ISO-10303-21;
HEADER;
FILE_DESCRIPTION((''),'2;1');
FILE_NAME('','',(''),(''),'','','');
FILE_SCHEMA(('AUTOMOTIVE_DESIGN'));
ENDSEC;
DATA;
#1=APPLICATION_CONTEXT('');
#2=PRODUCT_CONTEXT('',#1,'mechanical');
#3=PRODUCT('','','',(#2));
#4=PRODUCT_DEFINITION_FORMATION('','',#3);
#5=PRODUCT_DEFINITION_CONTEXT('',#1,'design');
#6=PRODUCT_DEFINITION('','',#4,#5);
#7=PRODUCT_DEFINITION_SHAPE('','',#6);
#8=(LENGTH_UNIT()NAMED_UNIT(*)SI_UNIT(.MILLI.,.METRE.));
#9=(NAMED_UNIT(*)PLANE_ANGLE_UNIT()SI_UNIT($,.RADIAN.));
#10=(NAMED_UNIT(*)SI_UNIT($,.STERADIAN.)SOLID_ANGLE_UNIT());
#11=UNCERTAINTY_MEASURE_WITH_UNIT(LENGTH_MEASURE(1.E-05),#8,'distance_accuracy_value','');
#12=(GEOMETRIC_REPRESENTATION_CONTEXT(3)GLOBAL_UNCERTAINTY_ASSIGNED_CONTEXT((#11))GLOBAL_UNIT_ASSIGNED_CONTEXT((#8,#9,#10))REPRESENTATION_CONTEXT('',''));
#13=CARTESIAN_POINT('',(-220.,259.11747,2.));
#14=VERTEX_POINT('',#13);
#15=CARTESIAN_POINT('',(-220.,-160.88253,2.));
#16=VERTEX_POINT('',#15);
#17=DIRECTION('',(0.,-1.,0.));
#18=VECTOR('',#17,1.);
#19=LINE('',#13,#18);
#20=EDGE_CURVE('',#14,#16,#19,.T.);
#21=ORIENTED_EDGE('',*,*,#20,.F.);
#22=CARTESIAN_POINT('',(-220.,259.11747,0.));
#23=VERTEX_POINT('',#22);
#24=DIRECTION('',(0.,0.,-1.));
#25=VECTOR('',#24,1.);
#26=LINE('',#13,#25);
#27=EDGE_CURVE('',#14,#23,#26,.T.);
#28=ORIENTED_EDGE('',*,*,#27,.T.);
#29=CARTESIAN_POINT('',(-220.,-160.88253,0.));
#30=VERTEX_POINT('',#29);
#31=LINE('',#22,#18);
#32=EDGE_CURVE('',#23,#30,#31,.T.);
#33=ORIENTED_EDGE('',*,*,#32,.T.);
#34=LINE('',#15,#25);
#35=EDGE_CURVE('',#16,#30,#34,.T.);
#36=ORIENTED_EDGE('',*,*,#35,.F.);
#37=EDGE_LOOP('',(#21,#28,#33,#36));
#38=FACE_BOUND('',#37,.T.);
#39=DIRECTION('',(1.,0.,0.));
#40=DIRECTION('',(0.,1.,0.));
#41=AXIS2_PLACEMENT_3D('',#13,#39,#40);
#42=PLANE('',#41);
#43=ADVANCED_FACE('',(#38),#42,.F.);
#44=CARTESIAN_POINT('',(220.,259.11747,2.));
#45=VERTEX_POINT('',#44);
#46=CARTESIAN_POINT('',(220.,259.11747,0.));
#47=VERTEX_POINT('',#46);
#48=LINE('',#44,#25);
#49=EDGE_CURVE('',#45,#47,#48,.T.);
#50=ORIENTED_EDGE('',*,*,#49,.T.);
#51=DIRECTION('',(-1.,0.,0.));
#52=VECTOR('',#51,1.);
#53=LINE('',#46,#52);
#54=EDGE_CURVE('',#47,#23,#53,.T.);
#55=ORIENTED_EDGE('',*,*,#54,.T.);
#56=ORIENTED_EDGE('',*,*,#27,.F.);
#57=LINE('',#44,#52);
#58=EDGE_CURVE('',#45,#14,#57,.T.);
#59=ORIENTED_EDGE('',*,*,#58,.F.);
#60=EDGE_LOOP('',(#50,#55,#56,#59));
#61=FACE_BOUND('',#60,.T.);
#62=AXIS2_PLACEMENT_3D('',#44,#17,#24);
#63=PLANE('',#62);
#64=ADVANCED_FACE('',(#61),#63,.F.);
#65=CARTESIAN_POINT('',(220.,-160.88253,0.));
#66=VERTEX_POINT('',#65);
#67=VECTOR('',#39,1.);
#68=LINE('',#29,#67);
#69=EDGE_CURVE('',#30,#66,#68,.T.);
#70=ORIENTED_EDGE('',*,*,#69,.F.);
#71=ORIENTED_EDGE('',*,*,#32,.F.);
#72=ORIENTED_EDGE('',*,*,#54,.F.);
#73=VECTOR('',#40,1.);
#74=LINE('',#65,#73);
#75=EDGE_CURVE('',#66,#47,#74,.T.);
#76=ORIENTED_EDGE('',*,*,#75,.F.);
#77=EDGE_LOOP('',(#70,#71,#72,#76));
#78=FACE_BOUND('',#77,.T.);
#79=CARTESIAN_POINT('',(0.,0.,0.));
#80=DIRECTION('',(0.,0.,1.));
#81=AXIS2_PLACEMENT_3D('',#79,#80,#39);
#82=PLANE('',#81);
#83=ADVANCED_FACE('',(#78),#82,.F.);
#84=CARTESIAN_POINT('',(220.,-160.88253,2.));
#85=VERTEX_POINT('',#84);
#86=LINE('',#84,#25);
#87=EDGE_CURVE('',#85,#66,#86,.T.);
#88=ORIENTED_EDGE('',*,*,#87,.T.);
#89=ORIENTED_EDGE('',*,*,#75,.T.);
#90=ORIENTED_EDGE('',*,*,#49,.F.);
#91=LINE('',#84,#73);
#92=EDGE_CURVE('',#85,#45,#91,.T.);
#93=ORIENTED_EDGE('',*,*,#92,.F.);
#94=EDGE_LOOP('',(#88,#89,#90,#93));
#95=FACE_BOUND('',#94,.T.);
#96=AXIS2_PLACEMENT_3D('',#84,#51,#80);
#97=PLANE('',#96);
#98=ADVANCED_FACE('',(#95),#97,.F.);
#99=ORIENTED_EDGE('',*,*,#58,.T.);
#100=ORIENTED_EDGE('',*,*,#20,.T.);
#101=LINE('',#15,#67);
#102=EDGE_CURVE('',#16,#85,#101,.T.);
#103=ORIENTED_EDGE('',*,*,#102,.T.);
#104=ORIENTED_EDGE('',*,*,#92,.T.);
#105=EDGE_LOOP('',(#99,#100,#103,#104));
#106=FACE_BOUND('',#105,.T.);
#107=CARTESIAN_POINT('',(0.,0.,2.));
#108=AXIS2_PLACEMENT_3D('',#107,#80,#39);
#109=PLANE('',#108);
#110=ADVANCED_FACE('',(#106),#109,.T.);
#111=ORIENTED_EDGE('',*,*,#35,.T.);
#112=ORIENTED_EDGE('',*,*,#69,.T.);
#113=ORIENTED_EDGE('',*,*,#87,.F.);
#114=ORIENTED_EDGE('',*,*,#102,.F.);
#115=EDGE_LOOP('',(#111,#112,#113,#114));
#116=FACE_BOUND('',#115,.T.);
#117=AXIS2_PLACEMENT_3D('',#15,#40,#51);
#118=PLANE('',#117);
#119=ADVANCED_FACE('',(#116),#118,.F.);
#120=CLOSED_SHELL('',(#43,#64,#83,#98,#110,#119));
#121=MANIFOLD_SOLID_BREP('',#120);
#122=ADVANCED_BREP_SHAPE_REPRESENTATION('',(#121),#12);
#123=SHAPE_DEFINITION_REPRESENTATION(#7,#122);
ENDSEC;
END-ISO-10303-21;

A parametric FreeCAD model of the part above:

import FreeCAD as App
import Part
import Sketcher

V = App.Vector

doc = App.newDocument("Part")
body = doc.addObject("PartDesign::Body", "Body")

# Sketch on XY plane
sketch1 = doc.addObject("Sketcher::SketchObject", "Sketch")
body.addObject(sketch1)
sketch1.AttachmentSupport = (doc.XY_Plane, [""])
sketch1.MapMode = "FlatFace"
sketch1.addGeometry([
    Part.LineSegment(V(-220, 259.11747, 0), V(-220, -160.88253, 0)),
    Part.LineSegment(V(-220, -160.88253, 0), V(220, -160.88253, 0)),
    Part.LineSegment(V(220, -160.88253, 0), V(220, 259.11747, 0)),
    Part.LineSegment(V(220, 259.11747, 0), V(-220, 259.11747, 0)),
], False)
sketch1.addConstraint([
    Sketcher.Constraint("Coincident", 0, 2, 1, 1),
    Sketcher.Constraint("Coincident", 1, 2, 2, 1),
    Sketcher.Constraint("Coincident", 2, 2, 3, 1),
    Sketcher.Constraint("Coincident", 3, 2, 0, 1),
    Sketcher.Constraint("Vertical", 0),
    Sketcher.Constraint("Horizontal", 1),
    Sketcher.Constraint("Vertical", 2),
    Sketcher.Constraint("Horizontal", 3),
    Sketcher.Constraint("DistanceX", 1, 1, 1, 2, 440.0),
    Sketcher.Constraint("DistanceY", 0, 2, 0, 1, 420.0),
    Sketcher.Constraint("DistanceX", 0, 2, -1, 1, 220.0),
    Sketcher.Constraint("DistanceY", 0, 2, -1, 1, 160.88253),
])
pad1 = doc.addObject("PartDesign::Pad", "Pad")
body.addObject(pad1)
pad1.Profile = sketch1
pad1.Length = 2

doc.recompute()
